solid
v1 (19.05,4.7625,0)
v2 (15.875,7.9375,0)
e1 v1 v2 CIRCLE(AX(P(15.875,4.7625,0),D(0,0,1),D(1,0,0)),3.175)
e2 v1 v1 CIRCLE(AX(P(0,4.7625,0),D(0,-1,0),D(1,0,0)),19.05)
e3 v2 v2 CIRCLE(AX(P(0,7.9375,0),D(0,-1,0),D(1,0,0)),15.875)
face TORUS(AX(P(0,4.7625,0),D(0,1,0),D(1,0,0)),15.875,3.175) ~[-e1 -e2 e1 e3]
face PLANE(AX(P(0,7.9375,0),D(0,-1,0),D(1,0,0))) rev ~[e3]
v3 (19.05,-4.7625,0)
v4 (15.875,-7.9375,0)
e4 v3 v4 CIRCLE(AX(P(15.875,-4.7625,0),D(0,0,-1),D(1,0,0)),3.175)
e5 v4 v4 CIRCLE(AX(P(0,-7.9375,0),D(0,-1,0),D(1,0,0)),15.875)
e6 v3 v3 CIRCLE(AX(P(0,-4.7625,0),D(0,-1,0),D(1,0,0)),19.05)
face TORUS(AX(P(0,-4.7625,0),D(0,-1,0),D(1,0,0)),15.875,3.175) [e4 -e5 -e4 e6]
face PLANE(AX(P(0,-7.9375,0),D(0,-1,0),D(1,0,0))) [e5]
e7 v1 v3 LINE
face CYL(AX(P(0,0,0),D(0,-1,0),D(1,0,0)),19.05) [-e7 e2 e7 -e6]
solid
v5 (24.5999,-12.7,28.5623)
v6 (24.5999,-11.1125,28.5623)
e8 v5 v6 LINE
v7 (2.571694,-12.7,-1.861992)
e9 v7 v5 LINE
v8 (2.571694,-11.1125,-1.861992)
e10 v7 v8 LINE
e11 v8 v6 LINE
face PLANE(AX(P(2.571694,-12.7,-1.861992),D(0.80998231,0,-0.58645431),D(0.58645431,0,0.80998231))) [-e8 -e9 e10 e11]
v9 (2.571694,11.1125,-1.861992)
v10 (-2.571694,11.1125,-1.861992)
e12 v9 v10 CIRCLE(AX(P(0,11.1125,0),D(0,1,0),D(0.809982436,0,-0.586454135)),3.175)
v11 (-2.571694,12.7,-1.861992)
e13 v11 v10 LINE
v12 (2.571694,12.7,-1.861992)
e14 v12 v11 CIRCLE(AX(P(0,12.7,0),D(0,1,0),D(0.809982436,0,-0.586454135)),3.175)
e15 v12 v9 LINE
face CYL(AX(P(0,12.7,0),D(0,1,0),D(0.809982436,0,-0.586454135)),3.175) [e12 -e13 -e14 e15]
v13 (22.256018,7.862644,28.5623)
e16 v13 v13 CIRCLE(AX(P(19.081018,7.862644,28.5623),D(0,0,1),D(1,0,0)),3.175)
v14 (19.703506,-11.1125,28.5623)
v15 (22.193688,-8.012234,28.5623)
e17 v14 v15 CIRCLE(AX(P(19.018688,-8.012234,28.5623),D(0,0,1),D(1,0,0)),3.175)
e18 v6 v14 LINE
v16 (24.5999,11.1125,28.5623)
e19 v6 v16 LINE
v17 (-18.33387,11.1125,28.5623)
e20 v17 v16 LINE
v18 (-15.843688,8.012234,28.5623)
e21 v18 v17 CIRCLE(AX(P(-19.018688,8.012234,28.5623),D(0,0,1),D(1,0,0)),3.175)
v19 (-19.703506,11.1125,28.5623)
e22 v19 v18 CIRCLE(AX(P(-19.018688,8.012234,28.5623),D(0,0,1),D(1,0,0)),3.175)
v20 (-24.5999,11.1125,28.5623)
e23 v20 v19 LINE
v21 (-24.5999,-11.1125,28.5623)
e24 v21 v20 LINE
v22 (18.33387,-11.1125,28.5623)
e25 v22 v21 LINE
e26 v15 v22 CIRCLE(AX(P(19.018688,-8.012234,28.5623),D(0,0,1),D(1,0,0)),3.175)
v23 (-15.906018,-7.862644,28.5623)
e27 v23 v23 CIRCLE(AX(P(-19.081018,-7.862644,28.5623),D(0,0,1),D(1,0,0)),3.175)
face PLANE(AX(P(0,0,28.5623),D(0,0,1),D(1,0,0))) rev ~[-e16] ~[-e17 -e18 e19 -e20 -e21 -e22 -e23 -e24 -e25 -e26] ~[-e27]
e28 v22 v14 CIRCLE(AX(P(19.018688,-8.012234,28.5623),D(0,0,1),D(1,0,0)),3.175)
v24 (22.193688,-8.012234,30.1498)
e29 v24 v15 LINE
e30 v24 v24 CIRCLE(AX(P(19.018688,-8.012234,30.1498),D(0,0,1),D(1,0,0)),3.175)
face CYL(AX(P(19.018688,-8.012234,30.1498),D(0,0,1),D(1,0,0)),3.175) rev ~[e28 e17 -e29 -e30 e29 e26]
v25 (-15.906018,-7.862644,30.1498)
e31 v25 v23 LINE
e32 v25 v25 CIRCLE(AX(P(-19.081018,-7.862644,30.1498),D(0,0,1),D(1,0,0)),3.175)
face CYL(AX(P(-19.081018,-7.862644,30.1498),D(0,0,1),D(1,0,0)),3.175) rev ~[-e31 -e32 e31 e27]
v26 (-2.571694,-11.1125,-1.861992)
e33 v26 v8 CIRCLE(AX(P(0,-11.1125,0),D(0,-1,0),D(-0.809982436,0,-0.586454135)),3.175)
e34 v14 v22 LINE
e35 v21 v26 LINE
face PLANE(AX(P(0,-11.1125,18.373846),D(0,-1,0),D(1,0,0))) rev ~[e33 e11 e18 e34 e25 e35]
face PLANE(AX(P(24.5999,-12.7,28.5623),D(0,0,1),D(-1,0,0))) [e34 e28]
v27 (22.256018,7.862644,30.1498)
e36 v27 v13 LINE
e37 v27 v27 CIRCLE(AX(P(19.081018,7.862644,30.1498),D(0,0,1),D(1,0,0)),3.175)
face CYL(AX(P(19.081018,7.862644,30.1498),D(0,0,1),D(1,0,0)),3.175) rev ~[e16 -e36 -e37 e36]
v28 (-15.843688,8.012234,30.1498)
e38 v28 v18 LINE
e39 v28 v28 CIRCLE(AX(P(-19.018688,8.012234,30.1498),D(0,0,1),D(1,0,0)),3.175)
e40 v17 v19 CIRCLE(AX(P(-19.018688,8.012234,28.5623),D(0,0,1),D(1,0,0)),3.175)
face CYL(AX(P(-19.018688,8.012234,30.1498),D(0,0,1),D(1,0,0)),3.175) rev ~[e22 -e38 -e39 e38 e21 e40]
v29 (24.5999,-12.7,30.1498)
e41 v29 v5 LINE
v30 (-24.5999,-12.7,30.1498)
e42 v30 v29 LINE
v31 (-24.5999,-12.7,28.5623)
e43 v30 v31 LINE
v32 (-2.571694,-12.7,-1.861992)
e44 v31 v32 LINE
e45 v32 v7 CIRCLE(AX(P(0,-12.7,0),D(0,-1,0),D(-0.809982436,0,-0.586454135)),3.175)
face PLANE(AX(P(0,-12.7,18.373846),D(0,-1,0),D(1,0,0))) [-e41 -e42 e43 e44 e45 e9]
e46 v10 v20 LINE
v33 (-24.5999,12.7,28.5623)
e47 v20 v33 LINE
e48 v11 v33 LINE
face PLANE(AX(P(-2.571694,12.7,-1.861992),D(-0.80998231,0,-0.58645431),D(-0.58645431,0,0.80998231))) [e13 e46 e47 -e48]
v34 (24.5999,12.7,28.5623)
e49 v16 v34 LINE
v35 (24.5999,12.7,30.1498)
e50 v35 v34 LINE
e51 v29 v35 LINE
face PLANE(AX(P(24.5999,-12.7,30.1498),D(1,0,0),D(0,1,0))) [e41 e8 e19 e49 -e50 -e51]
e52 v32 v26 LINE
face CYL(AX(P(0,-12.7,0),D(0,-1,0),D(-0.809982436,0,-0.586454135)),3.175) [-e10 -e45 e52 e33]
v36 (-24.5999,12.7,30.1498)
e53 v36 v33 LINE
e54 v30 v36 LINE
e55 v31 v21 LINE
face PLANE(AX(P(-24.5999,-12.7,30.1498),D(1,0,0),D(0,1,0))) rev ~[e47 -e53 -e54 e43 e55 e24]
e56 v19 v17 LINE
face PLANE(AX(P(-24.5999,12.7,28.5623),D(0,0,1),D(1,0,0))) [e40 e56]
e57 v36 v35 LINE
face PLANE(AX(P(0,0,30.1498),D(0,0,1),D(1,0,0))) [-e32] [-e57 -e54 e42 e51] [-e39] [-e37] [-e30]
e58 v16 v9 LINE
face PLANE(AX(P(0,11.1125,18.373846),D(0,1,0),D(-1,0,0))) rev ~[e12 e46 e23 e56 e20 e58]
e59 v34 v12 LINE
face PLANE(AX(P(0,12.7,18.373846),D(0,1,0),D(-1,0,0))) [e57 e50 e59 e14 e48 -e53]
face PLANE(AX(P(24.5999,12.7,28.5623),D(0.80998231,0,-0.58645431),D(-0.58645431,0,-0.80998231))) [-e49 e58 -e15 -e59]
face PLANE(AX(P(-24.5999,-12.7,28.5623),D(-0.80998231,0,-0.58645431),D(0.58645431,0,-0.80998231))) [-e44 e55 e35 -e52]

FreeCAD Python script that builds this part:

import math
import FreeCAD as App
import Part
import Sketcher
Q = App.Units.Quantity


def edges_at(feature, points):
    """Names of the edges that pass closest to the given points."""
    edges = feature.Shape.Edges
    near = lambda p: min(range(len(edges)), key=lambda i: edges[i].distToShape(Part.Vertex(*p))[0])
    return sorted({f"Edge{near(p) + 1}" for p in points})


def add_polygon(sketch, points):
    """Adds a closed chain of lines whose ends are joined by coincident constraints."""
    first, n = sketch.GeometryCount, len(points)
    for a, b in zip(points, points[1:] + points[:1]):
        sketch.addGeometry(Part.LineSegment(App.Vector(*a, 0), App.Vector(*b, 0)), False)
    for i in range(n):
        sketch.addConstraint(Sketcher.Constraint("Coincident", first + i, 2, first + (i + 1) % n, 1))

doc = App.newDocument("Part")
params = doc.addObject("Spreadsheet::Sheet", "Params")
for row, (alias, value) in enumerate([
    ("sketch1_diameter", "1.5 in"),
    ("pad1_length", "0.625 in"),
    ("fillet_radius", "0.125 in"),
    ("sketch2_diameter", "0.25 in"),
    ("sketch2_height", "1 in"),
    ("sketch2_width", "1.937 in"),
    ("pad2_length", "0.0625 in"),
    ("sketch3_radius", "0.125 in"),
    ("sketch3_width", "1.937 in"),
    ("pad3_length", "0.0625 in"),
    ("sketch4_radius", "0.125 in"),
    ("sketch4_width", "1.937 in"),
    ("pad4_length", "0.0625 in"),
], start=1):
    params.set(f"A{row}", alias)
    params.set(f"B{row}", "=" + value)
    params.setAlias(f"B{row}", alias)

body = doc.addObject("PartDesign::Body", "Body")

sketch1 = body.newObject("Sketcher::SketchObject", "Sketch")
sketch1.AttachmentSupport = (doc.getObject("XZ_Plane"), [""])
sketch1.MapMode = "FlatFace"
sketch1.addGeometry(Part.Circle(App.Vector(0, 0, 0), App.Vector(0, 0, 1), 19), False)
sketch1.addConstraint([
    Sketcher.Constraint("Coincident", 0, 3, -1, 1),
    Sketcher.Constraint("Diameter", 0, Q("1.5 in")),
])
sketch1.setExpression("Constraints[1]", "Params.sketch1_diameter")
pad1 = body.newObject("PartDesign::Pad", "Pad")
pad1.Profile = sketch1
pad1.setExpression("Length", "Params.pad1_length")
pad1.Midplane = True
doc.recompute()

fillet = body.newObject("PartDesign::Fillet", "Fillet")
fillet.Base = (pad1, edges_at(pad1, [(-19.05, 7.938, 0), (-19.05, -7.938, 0)]))
fillet.setExpression("Radius", "Params.fillet_radius")
body2 = doc.addObject("PartDesign::Body", "Body001")

sketch2 = body2.newObject("Sketcher::SketchObject", "Sketch001")
sketch2.AttachmentSupport = (doc.getObject("XY_Plane001"), [""])
sketch2.MapMode = "FlatFace"
sketch2.AttachmentOffset = App.Placement(App.Vector(0, 0, 1.187 * 25.4), App.Rotation())
add_polygon(sketch2, [(-24.6, 12.7), (-24.6, -12.7), (24.6, -12.7), (24.6, 12.7)])
sketch2.addGeometry(Part.Circle(App.Vector(-19.1, -7.9, 0), App.Vector(0, 0, 1), 3.2), False)
sketch2.addGeometry(Part.Circle(App.Vector(19, -8, 0), App.Vector(0, 0, 1), 3.2), False)
sketch2.addGeometry(Part.Circle(App.Vector(-19, 8, 0), App.Vector(0, 0, 1), 3.2), False)
sketch2.addGeometry(Part.Circle(App.Vector(19.1, 7.9, 0), App.Vector(0, 0, 1), 3.2), False)
sketch2.addConstraint([
    Sketcher.Constraint("Vertical", 0),
    Sketcher.Constraint("Horizontal", 1),
    Sketcher.Constraint("Vertical", 2),
    Sketcher.Constraint("Horizontal", 3),
    Sketcher.Constraint("Equal", 4, 5),
    Sketcher.Constraint("Equal", 5, 6),
    Sketcher.Constraint("Equal", 6, 7),
    Sketcher.Constraint("Symmetric", 5, 3, 6, 3, -1, 1),
    Sketcher.Constraint("Symmetric", 4, 3, 7, 3, -1, 1),
    Sketcher.Constraint("Symmetric", 0, 2, 2, 2, -1, 1),
    Sketcher.Constraint("Diameter", 4, Q("0.25 in")),
    Sketcher.Constraint("DistanceY", 0, 2, 0, 1, Q("1 in")),
    Sketcher.Constraint("DistanceX", 1, 1, 1, 2, Q("1.937 in")),
    Sketcher.Constraint("DistanceX", 4, 3, -1, 1, Q("19.081018 mm")),
    Sketcher.Constraint("DistanceX", -1, 1, 5, 3, Q("19.018688 mm")),
    Sketcher.Constraint("DistanceY", 5, 3, 4, 3, Q("0.14959 mm")),
    Sketcher.Constraint("DistanceY", 4, 3, 7, 3, Q("15.725288 mm")),
])
sketch2.setExpression("Constraints[14]", "Params.sketch2_diameter")
sketch2.setExpression("Constraints[15]", "Params.sketch2_height")
sketch2.setExpression("Constraints[16]", "Params.sketch2_width")
pad2 = body2.newObject("PartDesign::Pad", "Pad001")
pad2.Profile = sketch2
pad2.setExpression("Length", "Params.pad2_length")
pad2.Reversed = True

sketch3 = body2.newObject("Sketcher::SketchObject", "Sketch002")
sketch3.AttachmentSupport = (doc.getObject("XZ_Plane001"), [""])
sketch3.MapMode = "FlatFace"
sketch3.AttachmentOffset = App.Placement(App.Vector(0, 0, 0.5 * 25.4), App.Rotation())
sketch3.addGeometry([
    Part.LineSegment(App.Vector(-24.6, 28.6, 0), App.Vector(-2.6, -1.9, 0)),
    Part.ArcOfCircle(Part.Circle(App.Vector(0, 0, 0), App.Vector(0, 0, 1), 3.2), math.radians(-144), math.radians(-36)),
    Part.LineSegment(App.Vector(2.6, -1.9, 0), App.Vector(24.6, 28.6, 0)),
    Part.LineSegment(App.Vector(24.6, 28.6, 0), App.Vector(-24.6, 28.6, 0)),
], False)
sketch3.addConstraint([
    Sketcher.Constraint("Tangent", 0, 2, 1, 1),
    Sketcher.Constraint("Tangent", 1, 2, 2, 1),
    Sketcher.Constraint("Coincident", 2, 2, 3, 1),
    Sketcher.Constraint("Coincident", 3, 2, 0, 1),
    Sketcher.Constraint("Horizontal", 3),
    Sketcher.Constraint("Coincident", 1, 3, -1, 1),
    Sketcher.Constraint("Horizontal", 0, 2, 1, 2),
    Sketcher.Constraint("Radius", 1, Q("0.125 in")),
    Sketcher.Constraint("DistanceX", 3, 2, 3, 1, Q("1.937 in")),
    Sketcher.Constraint("DistanceY", -1, 1, 2, 2, Q("1.1245 in")),
])
sketch3.setExpression("Constraints[7]", "Params.sketch3_radius")
sketch3.setExpression("Constraints[8]", "Params.sketch3_width")
pad3 = body2.newObject("PartDesign::Pad", "Pad002")
pad3.Profile = sketch3
pad3.setExpression("Length", "Params.pad3_length")
pad3.Reversed = True

sketch4 = body2.newObject("Sketcher::SketchObject", "Sketch003")
sketch4.AttachmentSupport = (doc.getObject("XZ_Plane001"), [""])
sketch4.MapMode = "FlatFace"
sketch4.AttachmentOffset = App.Placement(App.Vector(0, 0, -0.5 * 25.4), App.Rotation())
sketch4.addGeometry([
    Part.LineSegment(App.Vector(24.6, 28.6, 0), App.Vector(2.6, -1.9, 0)),
    Part.ArcOfCircle(Part.Circle(App.Vector(0, 0, 0), App.Vector(0, 0, 1), 3.2), math.radians(-144), math.radians(-36)),
    Part.LineSegment(App.Vector(-2.6, -1.9, 0), App.Vector(-24.6, 28.6, 0)),
    Part.LineSegment(App.Vector(-24.6, 28.6, 0), App.Vector(24.6, 28.6, 0)),
], False)
sketch4.addConstraint([
    Sketcher.Constraint("Tangent", 0, 2, 1, 2),
    Sketcher.Constraint("Tangent", 1, 1, 2, 1),
    Sketcher.Constraint("Coincident", 2, 2, 3, 1),
    Sketcher.Constraint("Coincident", 3, 2, 0, 1),
    Sketcher.Constraint("Horizontal", 3),
    Sketcher.Constraint("Coincident", 1, 3, -1, 1),
    Sketcher.Constraint("Horizontal", 0, 2, 1, 1),
    Sketcher.Constraint("Radius", 1, Q("0.125 in")),
    Sketcher.Constraint("DistanceX", 3, 1, 3, 2, Q("1.937 in")),
    Sketcher.Constraint("DistanceY", -1, 1, 2, 2, Q("1.1245 in")),
])
sketch4.setExpression("Constraints[7]", "Params.sketch4_radius")
sketch4.setExpression("Constraints[8]", "Params.sketch4_width")
pad4 = body2.newObject("PartDesign::Pad", "Pad003")
pad4.Profile = sketch4
pad4.setExpression("Length", "Params.pad4_length")

doc.recompute()
